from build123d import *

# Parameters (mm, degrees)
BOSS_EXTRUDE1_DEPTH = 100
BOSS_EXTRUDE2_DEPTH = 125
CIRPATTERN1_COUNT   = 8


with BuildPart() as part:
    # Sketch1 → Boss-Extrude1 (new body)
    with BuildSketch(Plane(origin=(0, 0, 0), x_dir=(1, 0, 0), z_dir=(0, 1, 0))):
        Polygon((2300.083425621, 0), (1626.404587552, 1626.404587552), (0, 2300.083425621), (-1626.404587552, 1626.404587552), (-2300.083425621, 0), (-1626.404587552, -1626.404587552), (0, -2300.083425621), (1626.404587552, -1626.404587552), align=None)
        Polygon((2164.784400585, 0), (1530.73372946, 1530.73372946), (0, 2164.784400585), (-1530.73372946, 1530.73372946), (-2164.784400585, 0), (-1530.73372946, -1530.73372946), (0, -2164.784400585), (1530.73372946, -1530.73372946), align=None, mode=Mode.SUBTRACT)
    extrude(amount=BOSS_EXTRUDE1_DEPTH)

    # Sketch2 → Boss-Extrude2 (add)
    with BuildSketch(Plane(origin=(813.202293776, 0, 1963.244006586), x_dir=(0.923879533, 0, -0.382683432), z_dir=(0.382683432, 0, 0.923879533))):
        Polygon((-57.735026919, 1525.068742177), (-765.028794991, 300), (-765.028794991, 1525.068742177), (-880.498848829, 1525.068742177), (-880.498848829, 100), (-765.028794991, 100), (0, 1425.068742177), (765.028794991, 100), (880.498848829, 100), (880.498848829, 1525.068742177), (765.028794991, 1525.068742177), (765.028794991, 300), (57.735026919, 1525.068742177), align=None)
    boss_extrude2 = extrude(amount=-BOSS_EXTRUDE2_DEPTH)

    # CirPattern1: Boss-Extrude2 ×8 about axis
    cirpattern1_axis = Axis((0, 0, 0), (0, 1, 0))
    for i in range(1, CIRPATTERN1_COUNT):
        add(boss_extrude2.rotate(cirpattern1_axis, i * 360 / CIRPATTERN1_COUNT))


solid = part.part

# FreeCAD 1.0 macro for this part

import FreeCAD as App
import Part
import Sketcher
from FreeCAD import Vector
Q = App.Units.Quantity


def add_polygon(sketch, points):
    """Adds a closed chain of lines whose ends are joined by coincident constraints."""
    first, n = sketch.GeometryCount, len(points)
    for a, b in zip(points, points[1:] + points[:1]):
        sketch.addGeometry(Part.LineSegment(App.Vector(*a, 0), App.Vector(*b, 0)), False)
    for i in range(n):
        sketch.addConstraint(Sketcher.Constraint("Coincident", first + i, 2, first + (i + 1) % n, 1))

doc = App.newDocument("Part")
params = doc.addObject("Spreadsheet::Sheet", "Params")
for row, (alias, value) in enumerate([
    ("pad1_length", "100 mm"),
    ("pad2_length", "125 mm"),
], start=1):
    params.set(f"A{row}", alias)
    params.set(f"B{row}", "=" + value)
    params.setAlias(f"B{row}", alias)

body = doc.addObject("PartDesign::Body", "Body")

sketch1 = doc.addObject("Sketcher::SketchObject", "Sketch")
body.addObject(sketch1)
sketch1.AttachmentSupport = (doc.XZ_Plane, [""])
sketch1.MapMode = "FlatFace"
add_polygon(sketch1, [(2300.083426, 0), (1626.404588, -1626.404588), (0, -2300.083426), (-1626.404588, -1626.404588), (-2300.083426, 0), (-1626.404588, 1626.404588), (0, 2300.083426), (1626.404588, 1626.404588)])
add_polygon(sketch1, [(1530.733729, -1530.733729), (2164.784401, 0), (1530.733729, 1530.733729), (0, 2164.784401), (-1530.733729, 1530.733729), (-2164.784401, 0), (-1530.733729, -1530.733729), (0, -2164.784401)])
sketch1.addConstraint(Sketcher.Constraint("Symmetric", 0, 2, 4, 2, -1, 1))
sketch1.addConstraint(Sketcher.Constraint("Symmetric", 1, 2, 5, 2, -1, 1))
sketch1.addConstraint(Sketcher.Constraint("Symmetric", 2, 2, 6, 2, -1, 1))
sketch1.addConstraint(Sketcher.Constraint("Symmetric", 3, 2, 7, 2, -1, 1))
sketch1.addConstraint(Sketcher.Constraint("Symmetric", 8, 2, 12, 2, -1, 1))
sketch1.addConstraint(Sketcher.Constraint("Symmetric", 9, 2, 13, 2, -1, 1))
sketch1.addConstraint(Sketcher.Constraint("Symmetric", 10, 2, 14, 2, -1, 1))
sketch1.addConstraint(Sketcher.Constraint("Symmetric", 11, 2, 15, 2, -1, 1))
sketch1.addConstraint(Sketcher.Constraint("Symmetric", 0, 2, 2, 2, -2))
sketch1.addConstraint(Sketcher.Constraint("Symmetric", 9, 2, 11, 2, -2))
sketch1.addConstraint(Sketcher.Constraint("PointOnObject", 1, 2, -2))
sketch1.addConstraint(Sketcher.Constraint("PointOnObject", 3, 2, -1))
sketch1.addConstraint(Sketcher.Constraint("PointOnObject", 8, 2, -1))
sketch1.addConstraint(Sketcher.Constraint("PointOnObject", 10, 2, -2))
sketch1.addConstraint(Sketcher.Constraint("Perpendicular", 0, 2))
sketch1.addConstraint(Sketcher.Constraint("Perpendicular", 6, 8))
sketch1.addConstraint(Sketcher.Constraint("Perpendicular", 8, 10))
sketch1.addConstraint(Sketcher.Constraint("Equal", 0, 1))
sketch1.addConstraint(Sketcher.Constraint("Equal", 9, 10))
sketch1.addConstraint(Sketcher.Constraint("Angle", 0, Q("-112.5 deg")))
sketch1.addConstraint(Sketcher.Constraint("DistanceX", -1, 1, 8, 2, Q("2164.784401 mm")))
sketch1.addConstraint(Sketcher.Constraint("Distance", 0, Q("1760.40764 mm")))
pad1 = doc.addObject("PartDesign::Pad", "Pad")
body.addObject(pad1)
pad1.Profile = sketch1
pad1.setExpression("Length", "Params.pad1_length")
pad1.Reversed = True

sketch2 = doc.addObject("Sketcher::SketchObject", "Sketch001")
body.addObject(sketch2)
sketch2.Placement = App.Placement(Vector(813.202294, 0, 1963.244007), App.Rotation(Vector(0.923879533, 0, -0.382683432), Vector(0, 1.000000001, 0), Vector(0.382683432, 0, 0.923879533), "ZXY"))
add_polygon(sketch2, [(-57.735027, 1525.068744), (-765.028795, 300), (-765.028795, 1525.068744), (-880.498849, 1525.068744), (-880.498849, 100), (-765.028795, 100), (0, 1425.068744), (765.028795, 100), (880.498849, 100), (880.498849, 1525.068744), (765.028795, 1525.068744), (765.028795, 300), (57.735027, 1525.068744)])
sketch2.addConstraint(Sketcher.Constraint("Vertical", 1))
sketch2.addConstraint(Sketcher.Constraint("Horizontal", 2))
sketch2.addConstraint(Sketcher.Constraint("Vertical", 3))
sketch2.addConstraint(Sketcher.Constraint("Horizontal", 4))
sketch2.addConstraint(Sketcher.Constraint("Horizontal", 7))
sketch2.addConstraint(Sketcher.Constraint("Vertical", 8))
sketch2.addConstraint(Sketcher.Constraint("Horizontal", 9))
sketch2.addConstraint(Sketcher.Constraint("Vertical", 10))
sketch2.addConstraint(Sketcher.Constraint("Horizontal", 12))
sketch2.addConstraint(Sketcher.Constraint("Symmetric", 4, 2, 6, 2, -2))
sketch2.addConstraint(Sketcher.Constraint("Symmetric", 2, 2, 8, 2, -2))
sketch2.addConstraint(Sketcher.Constraint("Symmetric", 0, 2, 10, 2, -2))
sketch2.addConstraint(Sketcher.Constraint("PointOnObject", 5, 2, -2))
sketch2.addConstraint(Sketcher.Constraint("Parallel", 0, 5))
sketch2.addConstraint(Sketcher.Constraint("Parallel", 6, 11))
sketch2.addConstraint(Sketcher.Constraint("Horizontal", 9, 2, 11, 2))
sketch2.addConstraint(Sketcher.Constraint("Vertical", 1, 2, 4, 2))
sketch2.addConstraint(Sketcher.Constraint("Equal", 9, 12))
sketch2.addConstraint(Sketcher.Constraint("Angle", 0, Q("-120 deg")))
sketch2.addConstraint(Sketcher.Constraint("DistanceY", -1, 1, 0, 2, Q("300 mm")))
sketch2.addConstraint(Sketcher.Constraint("DistanceY", -1, 1, 3, 2, Q("100 mm")))
sketch2.addConstraint(Sketcher.Constraint("DistanceY", 5, 2, 1, 2, Q("100 mm")))
sketch2.addConstraint(Sketcher.Constraint("DistanceX", 3, 2, 7, 2, Q("1760.997699 mm")))
pad2 = doc.addObject("PartDesign::Pad", "Pad001")
body.addObject(pad2)
pad2.Profile = sketch2
pad2.setExpression("Length", "Params.pad2_length")
pad2.Reversed = True
doc.recompute()

polarpattern = doc.addObject("PartDesign::PolarPattern", "PolarPattern")
body.addObject(polarpattern)
polarpattern.Originals = [pad2]
polarpattern.Axis = (doc.Y_Axis, [""])
polarpattern.Angle = 360
polarpattern.Occurrences = 8
body.Tip = polarpattern

doc.recompute()
